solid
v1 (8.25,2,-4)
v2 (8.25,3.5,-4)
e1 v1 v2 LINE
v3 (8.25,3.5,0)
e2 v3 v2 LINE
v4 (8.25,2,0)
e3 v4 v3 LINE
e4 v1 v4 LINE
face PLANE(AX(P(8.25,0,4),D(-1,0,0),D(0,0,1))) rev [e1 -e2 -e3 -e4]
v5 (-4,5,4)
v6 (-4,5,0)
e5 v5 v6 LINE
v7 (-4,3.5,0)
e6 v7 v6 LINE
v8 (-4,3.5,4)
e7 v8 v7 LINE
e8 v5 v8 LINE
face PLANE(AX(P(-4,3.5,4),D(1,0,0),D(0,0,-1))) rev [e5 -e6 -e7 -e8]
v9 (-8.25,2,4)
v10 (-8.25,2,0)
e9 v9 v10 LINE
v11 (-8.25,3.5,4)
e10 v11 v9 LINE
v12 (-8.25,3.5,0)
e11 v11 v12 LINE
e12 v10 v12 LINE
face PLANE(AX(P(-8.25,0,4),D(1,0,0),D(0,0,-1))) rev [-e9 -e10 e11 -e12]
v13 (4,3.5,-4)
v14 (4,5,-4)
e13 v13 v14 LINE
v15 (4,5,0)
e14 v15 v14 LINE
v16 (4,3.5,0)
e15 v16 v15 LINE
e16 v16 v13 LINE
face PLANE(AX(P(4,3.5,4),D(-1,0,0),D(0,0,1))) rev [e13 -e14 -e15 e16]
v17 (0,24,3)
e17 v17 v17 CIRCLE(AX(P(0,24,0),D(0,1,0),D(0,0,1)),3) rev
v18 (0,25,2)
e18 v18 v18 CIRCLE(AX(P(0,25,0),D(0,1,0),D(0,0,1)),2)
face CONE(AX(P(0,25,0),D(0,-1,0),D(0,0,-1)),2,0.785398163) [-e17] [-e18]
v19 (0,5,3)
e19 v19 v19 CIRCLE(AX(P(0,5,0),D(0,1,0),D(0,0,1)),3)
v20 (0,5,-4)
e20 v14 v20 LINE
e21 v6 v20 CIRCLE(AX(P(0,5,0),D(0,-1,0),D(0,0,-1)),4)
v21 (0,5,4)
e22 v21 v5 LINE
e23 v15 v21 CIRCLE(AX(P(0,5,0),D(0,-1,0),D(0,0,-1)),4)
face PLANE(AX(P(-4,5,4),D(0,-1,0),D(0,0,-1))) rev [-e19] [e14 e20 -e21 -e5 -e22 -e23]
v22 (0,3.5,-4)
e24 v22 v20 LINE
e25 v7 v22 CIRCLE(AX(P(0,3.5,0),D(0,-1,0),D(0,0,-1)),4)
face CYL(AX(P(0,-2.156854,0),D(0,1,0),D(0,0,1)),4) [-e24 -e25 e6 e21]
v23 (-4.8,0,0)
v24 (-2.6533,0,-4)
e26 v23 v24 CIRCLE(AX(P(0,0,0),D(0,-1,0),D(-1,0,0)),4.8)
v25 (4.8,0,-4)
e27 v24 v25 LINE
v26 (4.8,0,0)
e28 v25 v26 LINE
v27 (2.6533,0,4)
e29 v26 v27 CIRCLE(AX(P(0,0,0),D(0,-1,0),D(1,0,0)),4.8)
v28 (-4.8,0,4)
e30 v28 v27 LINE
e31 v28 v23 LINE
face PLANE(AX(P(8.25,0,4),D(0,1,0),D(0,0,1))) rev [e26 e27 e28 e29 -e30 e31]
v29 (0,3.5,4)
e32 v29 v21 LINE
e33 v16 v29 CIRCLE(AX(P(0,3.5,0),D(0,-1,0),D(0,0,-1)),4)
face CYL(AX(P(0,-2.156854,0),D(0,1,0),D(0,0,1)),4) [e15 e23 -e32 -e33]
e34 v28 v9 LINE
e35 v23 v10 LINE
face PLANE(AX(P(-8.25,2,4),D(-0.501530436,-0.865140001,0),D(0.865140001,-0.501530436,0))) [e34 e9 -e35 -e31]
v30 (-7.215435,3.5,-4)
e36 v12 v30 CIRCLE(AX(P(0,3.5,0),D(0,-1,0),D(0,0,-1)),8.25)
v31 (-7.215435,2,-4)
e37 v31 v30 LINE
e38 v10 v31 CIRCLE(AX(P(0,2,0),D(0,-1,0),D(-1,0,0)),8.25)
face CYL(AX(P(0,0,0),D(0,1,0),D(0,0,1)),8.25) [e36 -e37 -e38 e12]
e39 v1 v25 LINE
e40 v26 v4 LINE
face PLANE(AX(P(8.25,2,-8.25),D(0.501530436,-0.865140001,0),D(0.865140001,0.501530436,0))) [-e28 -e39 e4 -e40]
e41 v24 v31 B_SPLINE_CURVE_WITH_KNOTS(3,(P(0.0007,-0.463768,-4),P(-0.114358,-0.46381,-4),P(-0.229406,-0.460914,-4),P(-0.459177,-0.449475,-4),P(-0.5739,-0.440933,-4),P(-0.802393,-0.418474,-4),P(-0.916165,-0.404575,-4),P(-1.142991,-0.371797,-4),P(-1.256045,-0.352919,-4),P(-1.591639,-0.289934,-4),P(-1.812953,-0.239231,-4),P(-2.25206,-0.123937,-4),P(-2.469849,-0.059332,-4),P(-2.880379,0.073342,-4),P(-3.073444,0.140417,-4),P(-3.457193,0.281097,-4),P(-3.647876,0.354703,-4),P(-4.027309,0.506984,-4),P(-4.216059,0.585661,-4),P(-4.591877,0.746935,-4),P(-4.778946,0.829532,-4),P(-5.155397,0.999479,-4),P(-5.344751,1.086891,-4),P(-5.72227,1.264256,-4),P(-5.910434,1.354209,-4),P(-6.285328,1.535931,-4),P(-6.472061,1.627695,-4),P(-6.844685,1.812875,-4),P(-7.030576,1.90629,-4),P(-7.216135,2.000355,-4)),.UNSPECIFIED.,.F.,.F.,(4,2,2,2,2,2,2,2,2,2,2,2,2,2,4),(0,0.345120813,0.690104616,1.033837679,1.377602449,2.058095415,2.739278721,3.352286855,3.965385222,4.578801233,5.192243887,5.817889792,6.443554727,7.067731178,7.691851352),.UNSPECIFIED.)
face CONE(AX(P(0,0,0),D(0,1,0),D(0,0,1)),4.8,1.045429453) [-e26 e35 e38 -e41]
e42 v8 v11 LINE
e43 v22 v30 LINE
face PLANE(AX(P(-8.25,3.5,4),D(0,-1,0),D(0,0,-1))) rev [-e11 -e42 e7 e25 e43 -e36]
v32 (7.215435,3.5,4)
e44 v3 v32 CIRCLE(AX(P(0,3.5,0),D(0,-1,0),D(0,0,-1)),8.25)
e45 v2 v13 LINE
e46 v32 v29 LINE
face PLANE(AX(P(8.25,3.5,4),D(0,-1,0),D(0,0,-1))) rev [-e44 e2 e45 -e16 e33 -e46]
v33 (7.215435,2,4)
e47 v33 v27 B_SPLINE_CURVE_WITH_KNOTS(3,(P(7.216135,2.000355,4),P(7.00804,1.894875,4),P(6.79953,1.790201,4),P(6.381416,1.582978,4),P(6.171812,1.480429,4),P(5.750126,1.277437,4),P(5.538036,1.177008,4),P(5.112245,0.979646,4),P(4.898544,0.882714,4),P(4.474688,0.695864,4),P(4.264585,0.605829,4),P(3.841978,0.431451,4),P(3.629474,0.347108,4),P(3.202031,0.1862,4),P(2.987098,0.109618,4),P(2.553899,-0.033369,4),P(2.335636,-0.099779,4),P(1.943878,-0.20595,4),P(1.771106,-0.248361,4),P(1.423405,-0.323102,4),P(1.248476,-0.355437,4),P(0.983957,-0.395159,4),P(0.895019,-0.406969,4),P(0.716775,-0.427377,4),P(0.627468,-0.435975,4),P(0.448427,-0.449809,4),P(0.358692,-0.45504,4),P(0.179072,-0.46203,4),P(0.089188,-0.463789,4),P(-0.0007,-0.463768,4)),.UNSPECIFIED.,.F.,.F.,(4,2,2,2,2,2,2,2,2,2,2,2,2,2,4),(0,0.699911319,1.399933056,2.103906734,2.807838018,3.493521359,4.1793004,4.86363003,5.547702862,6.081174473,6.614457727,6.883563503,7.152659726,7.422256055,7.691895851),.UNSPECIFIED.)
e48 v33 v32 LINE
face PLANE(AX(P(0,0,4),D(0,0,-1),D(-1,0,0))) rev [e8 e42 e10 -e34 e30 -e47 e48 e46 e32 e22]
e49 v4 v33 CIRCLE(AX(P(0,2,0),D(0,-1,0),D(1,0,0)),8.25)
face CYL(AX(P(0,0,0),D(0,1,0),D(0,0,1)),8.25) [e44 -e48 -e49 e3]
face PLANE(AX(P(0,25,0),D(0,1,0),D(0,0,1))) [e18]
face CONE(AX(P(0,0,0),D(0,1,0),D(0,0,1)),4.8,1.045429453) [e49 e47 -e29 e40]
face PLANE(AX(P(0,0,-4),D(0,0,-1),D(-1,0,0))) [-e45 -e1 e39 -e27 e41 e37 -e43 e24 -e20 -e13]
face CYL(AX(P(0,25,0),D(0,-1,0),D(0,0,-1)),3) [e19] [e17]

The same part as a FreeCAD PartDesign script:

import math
import FreeCAD as App
import Part
import Sketcher
from FreeCAD import Vector


def edges_at(feature, points):
    """Names of the edges that pass closest to the given points."""
    edges = feature.Shape.Edges
    near = lambda p: min(range(len(edges)), key=lambda i: edges[i].distToShape(Part.Vertex(*p))[0])
    return sorted({f"Edge{near(p) + 1}" for p in points})


def add_polygon(sketch, points):
    """Adds a closed chain of lines whose ends are joined by coincident constraints."""
    first, n = sketch.GeometryCount, len(points)
    for a, b in zip(points, points[1:] + points[:1]):
        sketch.addGeometry(Part.LineSegment(App.Vector(*a, 0), App.Vector(*b, 0)), False)
    for i in range(n):
        sketch.addConstraint(Sketcher.Constraint("Coincident", first + i, 2, first + (i + 1) % n, 1))

doc = App.newDocument("Part")
body = doc.addObject("PartDesign::Body", "Body")

# Sketch on XY plane
sketch1 = body.newObject("Sketcher::SketchObject", "Sketch")
sketch1.AttachmentSupport = (doc.getObject("XY_Plane"), [""])
sketch1.MapMode = "FlatFace"
add_polygon(sketch1, [(-8.25, 0), (8.25, 0), (8.25, 3.5), (4, 3.5), (4, 5), (-4, 5), (-4, 3.5), (-8.25, 3.5)])  # lines 0-7
sketch1.addConstraint([
    Sketcher.Constraint("Horizontal", 0),
    Sketcher.Constraint("Vertical", 1),
    Sketcher.Constraint("Horizontal", 2),
    Sketcher.Constraint("Vertical", 3),
    Sketcher.Constraint("Horizontal", 4),
    Sketcher.Constraint("Vertical", 5),
    Sketcher.Constraint("Horizontal", 6),
    Sketcher.Constraint("Vertical", 7),
    Sketcher.Constraint("Symmetric", 0, 2, 7, 2, -1, 1),
    Sketcher.Constraint("Symmetric", 2, 2, 5, 2, -2),
    Sketcher.Constraint("DistanceX", 4, 2, 4, 1, 8.0),
    Sketcher.Constraint("DistanceX", 0, 1, 0, 2, 16.5),
    Sketcher.Constraint("DistanceY", 1, 1, 1, 2, 3.5),
    Sketcher.Constraint("DistanceY", 3, 1, 3, 2, 1.5),
])
pad1 = body.newObject("PartDesign::Pad", "Pad")
pad1.Profile = sketch1
pad1.Length = 8
pad1.Midplane = True

# Sketch on XZ plane
sketch2 = body.newObject("Sketcher::SketchObject", "Sketch001")
sketch2.AttachmentSupport = (doc.getObject("XZ_Plane"), [""])
sketch2.MapMode = "FlatFace"
sketch2.AttachmentOffset = App.Placement(Vector(0, 0, -5), App.Rotation())
sketch2.addGeometry(Part.Circle(Vector(0, 0, 0), Vector(0, 0, 1), 3), False)
sketch2.addConstraint([
    Sketcher.Constraint("Coincident", 0, 3, -1, 1),
    Sketcher.Constraint("Diameter", 0, 6.0),
])
pad2 = body.newObject("PartDesign::Pad", "Pad001")
pad2.Profile = sketch2
pad2.Length = 20
pad2.Reversed = True

# Sketch on XZ plane
sketch3 = body.newObject("Sketcher::SketchObject", "Sketch002")
sketch3.AttachmentSupport = (doc.getObject("XZ_Plane"), [""])
sketch3.MapMode = "FlatFace"
sketch3.AttachmentOffset = App.Placement(Vector(0, 0, -5), App.Rotation())
sketch3.addGeometry([
    Part.LineSegment(Vector(-4, -4, 0), Vector(-4, 0, 0)),  # 0
    Part.ArcOfCircle(Part.Circle(Vector(0, 0, 0), Vector(0, 0, 1), 4), math.radians(180), math.radians(270)),  # 1
    Part.LineSegment(Vector(0, -4, 0), Vector(-4, -4, 0)),  # 2
    Part.LineSegment(Vector(0, 4, 0), Vector(4, 4, 0)),  # 3
    Part.LineSegment(Vector(4, 4, 0), Vector(4, 0, 0)),  # 4
    Part.ArcOfCircle(Part.Circle(Vector(0, 0, 0), Vector(0, 0, 1), 4), math.radians(0), math.radians(90)),  # 5
], False)
sketch3.addConstraint([
    Sketcher.Constraint("Tangent", 0, 2, 1, 1),
    Sketcher.Constraint("Tangent", 1, 2, 2, 1),
    Sketcher.Constraint("Coincident", 2, 2, 0, 1),
    Sketcher.Constraint("Coincident", 3, 2, 4, 1),
    Sketcher.Constraint("Tangent", 4, 2, 5, 1),
    Sketcher.Constraint("Tangent", 5, 2, 3, 1),
    Sketcher.Constraint("Vertical", 0),
    Sketcher.Constraint("Horizontal", 2),
    Sketcher.Constraint("Horizontal", 3),
    Sketcher.Constraint("Vertical", 4),
    Sketcher.Constraint("Coincident", 1, 3, -1, 1),
    Sketcher.Constraint("Coincident", 5, 3, -1, 1),
    Sketcher.Constraint("Equal", 1, 5),
    Sketcher.Constraint("Radius", 1, 4.0),
])
pocket1 = body.newObject("PartDesign::Pocket", "Pocket")
pocket1.Profile = sketch3
pocket1.Length = 1.5
pocket1.Reversed = True

# Sketch on XZ plane
sketch4 = body.newObject("Sketcher::SketchObject", "Sketch003")
sketch4.AttachmentSupport = (doc.getObject("XZ_Plane"), [""])
sketch4.MapMode = "FlatFace"
sketch4.AttachmentOffset = App.Placement(Vector(0, 0, -3.5), App.Rotation())
sketch4.addGeometry([
    Part.LineSegment(Vector(-7.215435, -4, 0), Vector(-8.25, -4, 0)),  # 0
    Part.LineSegment(Vector(-8.25, -4, 0), Vector(-8.25, 0, 0)),  # 1
    Part.ArcOfCircle(Part.Circle(Vector(0, 0, 0), Vector(0, 0, 1), 8.25), math.radians(-180), math.radians(-150.997454)),  # 2
    Part.LineSegment(Vector(7.215435, 4, 0), Vector(8.25, 4, 0)),  # 3
    Part.LineSegment(Vector(8.25, 4, 0), Vector(8.25, 0, 0)),  # 4
    Part.ArcOfCircle(Part.Circle(Vector(0, 0, 0), Vector(0, 0, 1), 8.25), math.radians(0), math.radians(29.002546)),  # 5
], False)
sketch4.addConstraint([
    Sketcher.Constraint("Coincident", 0, 2, 1, 1),
    Sketcher.Constraint("Tangent", 1, 2, 2, 1),
    Sketcher.Constraint("Coincident", 2, 2, 0, 1),
    Sketcher.Constraint("Coincident", 3, 2, 4, 1),
    Sketcher.Constraint("Tangent", 4, 2, 5, 1),
    Sketcher.Constraint("Coincident", 5, 2, 3, 1),
    Sketcher.Constraint("Horizontal", 0),
    Sketcher.Constraint("Vertical", 1),
    Sketcher.Constraint("Horizontal", 3),
    Sketcher.Constraint("Vertical", 4),
    Sketcher.Constraint("Coincident", 2, 3, -1, 1),
    Sketcher.Constraint("Coincident", 5, 3, -1, 1),
    Sketcher.Constraint("Equal", 2, 5),
    Sketcher.Constraint("Equal", 0, 3),
    Sketcher.Constraint("DistanceY", 1, 1, 1, 2, 4.0),
    Sketcher.Constraint("Radius", 2, 8.25),
])
pocket2 = body.newObject("PartDesign::Pocket", "Pocket001")
pocket2.Profile = sketch4
pocket2.Type = "ThroughAll"
pocket2.Reversed = True

# Sketch on XY plane
sketch5 = body.newObject("Sketcher::SketchObject", "Sketch004")
sketch5.AttachmentSupport = (doc.getObject("XY_Plane"), [""])
sketch5.MapMode = "FlatFace"
sketch5.AttachmentOffset = App.Placement(Vector(0, 0, 4), App.Rotation())
add_polygon(sketch5, [(-4.8, 0), (-8.25, 2), (-8.25, 0)])  # lines 0-2
sketch5.addConstraint([
    Sketcher.Constraint("Vertical", 1),
    Sketcher.Constraint("Horizontal", 2),
    Sketcher.Constraint("PointOnObject", 1, 2, -1),
    Sketcher.Constraint("DistanceY", 1, 2, 1, 1, 2.0),
    Sketcher.Constraint("DistanceX", 2, 1, 2, 2, 3.45),
    Sketcher.Constraint("DistanceX", 2, 2, -1, 1, 4.8),
])

# Sketch on XZ plane
sketch6 = body.newObject("Sketcher::SketchObject", "Sketch005")
sketch6.AttachmentSupport = (doc.getObject("XZ_Plane"), [""])
sketch6.MapMode = "FlatFace"
sketch6.addGeometry([
    Part.LineSegment(Vector(0, -8.25, 0), Vector(8.25, -8.25, 0)),  # 0
    Part.LineSegment(Vector(8.25, -8.25, 0), Vector(8.25, 0, 0)),  # 1
    Part.ArcOfCircle(Part.Circle(Vector(0, 0, 0), Vector(0, 0, 1), 8.25), math.radians(0), math.radians(90)),  # 2
    Part.LineSegment(Vector(0, 8.25, 0), Vector(-8.25, 8.25, 0)),  # 3
    Part.LineSegment(Vector(-8.25, 8.25, 0), Vector(-8.25, 0, 0)),  # 4
    Part.ArcOfCircle(Part.Circle(Vector(0, 0, 0), Vector(0, 0, 1), 8.25), math.radians(180), math.radians(270)),  # 5
], False)
sketch6.addConstraint([
    Sketcher.Constraint("Coincident", 0, 2, 1, 1),
    Sketcher.Constraint("Tangent", 1, 2, 2, 1),
    Sketcher.Constraint("Tangent", 2, 2, 3, 1),
    Sketcher.Constraint("Coincident", 3, 2, 4, 1),
    Sketcher.Constraint("Tangent", 4, 2, 5, 1),
    Sketcher.Constraint("Tangent", 5, 2, 0, 1),
    Sketcher.Constraint("Horizontal", 0),
    Sketcher.Constraint("Vertical", 1),
    Sketcher.Constraint("Horizontal", 3),
    Sketcher.Constraint("Vertical", 4),
    Sketcher.Constraint("Coincident", 2, 3, -1, 1),
    Sketcher.Constraint("Coincident", 5, 3, -1, 1),
    Sketcher.Constraint("Equal", 2, 5),
    Sketcher.Constraint("Radius", 2, 8.25),
])
doc.recompute()

subtractivepipe = body.newObject("PartDesign::SubtractivePipe", "SubtractivePipe")
subtractivepipe.Profile = sketch5
subtractivepipe.Spine = (sketch6, ["Edge1", "Edge2", "Edge3", "Edge4", "Edge5", "Edge6"])
subtractivepipe.Transition = "Right corner"
doc.recompute()

chamfer = body.newObject("PartDesign::Chamfer", "Chamfer")
chamfer.Base = (subtractivepipe, edges_at(subtractivepipe, [(0, 25, -3)]))
chamfer.Size = 1

doc.recompute()
